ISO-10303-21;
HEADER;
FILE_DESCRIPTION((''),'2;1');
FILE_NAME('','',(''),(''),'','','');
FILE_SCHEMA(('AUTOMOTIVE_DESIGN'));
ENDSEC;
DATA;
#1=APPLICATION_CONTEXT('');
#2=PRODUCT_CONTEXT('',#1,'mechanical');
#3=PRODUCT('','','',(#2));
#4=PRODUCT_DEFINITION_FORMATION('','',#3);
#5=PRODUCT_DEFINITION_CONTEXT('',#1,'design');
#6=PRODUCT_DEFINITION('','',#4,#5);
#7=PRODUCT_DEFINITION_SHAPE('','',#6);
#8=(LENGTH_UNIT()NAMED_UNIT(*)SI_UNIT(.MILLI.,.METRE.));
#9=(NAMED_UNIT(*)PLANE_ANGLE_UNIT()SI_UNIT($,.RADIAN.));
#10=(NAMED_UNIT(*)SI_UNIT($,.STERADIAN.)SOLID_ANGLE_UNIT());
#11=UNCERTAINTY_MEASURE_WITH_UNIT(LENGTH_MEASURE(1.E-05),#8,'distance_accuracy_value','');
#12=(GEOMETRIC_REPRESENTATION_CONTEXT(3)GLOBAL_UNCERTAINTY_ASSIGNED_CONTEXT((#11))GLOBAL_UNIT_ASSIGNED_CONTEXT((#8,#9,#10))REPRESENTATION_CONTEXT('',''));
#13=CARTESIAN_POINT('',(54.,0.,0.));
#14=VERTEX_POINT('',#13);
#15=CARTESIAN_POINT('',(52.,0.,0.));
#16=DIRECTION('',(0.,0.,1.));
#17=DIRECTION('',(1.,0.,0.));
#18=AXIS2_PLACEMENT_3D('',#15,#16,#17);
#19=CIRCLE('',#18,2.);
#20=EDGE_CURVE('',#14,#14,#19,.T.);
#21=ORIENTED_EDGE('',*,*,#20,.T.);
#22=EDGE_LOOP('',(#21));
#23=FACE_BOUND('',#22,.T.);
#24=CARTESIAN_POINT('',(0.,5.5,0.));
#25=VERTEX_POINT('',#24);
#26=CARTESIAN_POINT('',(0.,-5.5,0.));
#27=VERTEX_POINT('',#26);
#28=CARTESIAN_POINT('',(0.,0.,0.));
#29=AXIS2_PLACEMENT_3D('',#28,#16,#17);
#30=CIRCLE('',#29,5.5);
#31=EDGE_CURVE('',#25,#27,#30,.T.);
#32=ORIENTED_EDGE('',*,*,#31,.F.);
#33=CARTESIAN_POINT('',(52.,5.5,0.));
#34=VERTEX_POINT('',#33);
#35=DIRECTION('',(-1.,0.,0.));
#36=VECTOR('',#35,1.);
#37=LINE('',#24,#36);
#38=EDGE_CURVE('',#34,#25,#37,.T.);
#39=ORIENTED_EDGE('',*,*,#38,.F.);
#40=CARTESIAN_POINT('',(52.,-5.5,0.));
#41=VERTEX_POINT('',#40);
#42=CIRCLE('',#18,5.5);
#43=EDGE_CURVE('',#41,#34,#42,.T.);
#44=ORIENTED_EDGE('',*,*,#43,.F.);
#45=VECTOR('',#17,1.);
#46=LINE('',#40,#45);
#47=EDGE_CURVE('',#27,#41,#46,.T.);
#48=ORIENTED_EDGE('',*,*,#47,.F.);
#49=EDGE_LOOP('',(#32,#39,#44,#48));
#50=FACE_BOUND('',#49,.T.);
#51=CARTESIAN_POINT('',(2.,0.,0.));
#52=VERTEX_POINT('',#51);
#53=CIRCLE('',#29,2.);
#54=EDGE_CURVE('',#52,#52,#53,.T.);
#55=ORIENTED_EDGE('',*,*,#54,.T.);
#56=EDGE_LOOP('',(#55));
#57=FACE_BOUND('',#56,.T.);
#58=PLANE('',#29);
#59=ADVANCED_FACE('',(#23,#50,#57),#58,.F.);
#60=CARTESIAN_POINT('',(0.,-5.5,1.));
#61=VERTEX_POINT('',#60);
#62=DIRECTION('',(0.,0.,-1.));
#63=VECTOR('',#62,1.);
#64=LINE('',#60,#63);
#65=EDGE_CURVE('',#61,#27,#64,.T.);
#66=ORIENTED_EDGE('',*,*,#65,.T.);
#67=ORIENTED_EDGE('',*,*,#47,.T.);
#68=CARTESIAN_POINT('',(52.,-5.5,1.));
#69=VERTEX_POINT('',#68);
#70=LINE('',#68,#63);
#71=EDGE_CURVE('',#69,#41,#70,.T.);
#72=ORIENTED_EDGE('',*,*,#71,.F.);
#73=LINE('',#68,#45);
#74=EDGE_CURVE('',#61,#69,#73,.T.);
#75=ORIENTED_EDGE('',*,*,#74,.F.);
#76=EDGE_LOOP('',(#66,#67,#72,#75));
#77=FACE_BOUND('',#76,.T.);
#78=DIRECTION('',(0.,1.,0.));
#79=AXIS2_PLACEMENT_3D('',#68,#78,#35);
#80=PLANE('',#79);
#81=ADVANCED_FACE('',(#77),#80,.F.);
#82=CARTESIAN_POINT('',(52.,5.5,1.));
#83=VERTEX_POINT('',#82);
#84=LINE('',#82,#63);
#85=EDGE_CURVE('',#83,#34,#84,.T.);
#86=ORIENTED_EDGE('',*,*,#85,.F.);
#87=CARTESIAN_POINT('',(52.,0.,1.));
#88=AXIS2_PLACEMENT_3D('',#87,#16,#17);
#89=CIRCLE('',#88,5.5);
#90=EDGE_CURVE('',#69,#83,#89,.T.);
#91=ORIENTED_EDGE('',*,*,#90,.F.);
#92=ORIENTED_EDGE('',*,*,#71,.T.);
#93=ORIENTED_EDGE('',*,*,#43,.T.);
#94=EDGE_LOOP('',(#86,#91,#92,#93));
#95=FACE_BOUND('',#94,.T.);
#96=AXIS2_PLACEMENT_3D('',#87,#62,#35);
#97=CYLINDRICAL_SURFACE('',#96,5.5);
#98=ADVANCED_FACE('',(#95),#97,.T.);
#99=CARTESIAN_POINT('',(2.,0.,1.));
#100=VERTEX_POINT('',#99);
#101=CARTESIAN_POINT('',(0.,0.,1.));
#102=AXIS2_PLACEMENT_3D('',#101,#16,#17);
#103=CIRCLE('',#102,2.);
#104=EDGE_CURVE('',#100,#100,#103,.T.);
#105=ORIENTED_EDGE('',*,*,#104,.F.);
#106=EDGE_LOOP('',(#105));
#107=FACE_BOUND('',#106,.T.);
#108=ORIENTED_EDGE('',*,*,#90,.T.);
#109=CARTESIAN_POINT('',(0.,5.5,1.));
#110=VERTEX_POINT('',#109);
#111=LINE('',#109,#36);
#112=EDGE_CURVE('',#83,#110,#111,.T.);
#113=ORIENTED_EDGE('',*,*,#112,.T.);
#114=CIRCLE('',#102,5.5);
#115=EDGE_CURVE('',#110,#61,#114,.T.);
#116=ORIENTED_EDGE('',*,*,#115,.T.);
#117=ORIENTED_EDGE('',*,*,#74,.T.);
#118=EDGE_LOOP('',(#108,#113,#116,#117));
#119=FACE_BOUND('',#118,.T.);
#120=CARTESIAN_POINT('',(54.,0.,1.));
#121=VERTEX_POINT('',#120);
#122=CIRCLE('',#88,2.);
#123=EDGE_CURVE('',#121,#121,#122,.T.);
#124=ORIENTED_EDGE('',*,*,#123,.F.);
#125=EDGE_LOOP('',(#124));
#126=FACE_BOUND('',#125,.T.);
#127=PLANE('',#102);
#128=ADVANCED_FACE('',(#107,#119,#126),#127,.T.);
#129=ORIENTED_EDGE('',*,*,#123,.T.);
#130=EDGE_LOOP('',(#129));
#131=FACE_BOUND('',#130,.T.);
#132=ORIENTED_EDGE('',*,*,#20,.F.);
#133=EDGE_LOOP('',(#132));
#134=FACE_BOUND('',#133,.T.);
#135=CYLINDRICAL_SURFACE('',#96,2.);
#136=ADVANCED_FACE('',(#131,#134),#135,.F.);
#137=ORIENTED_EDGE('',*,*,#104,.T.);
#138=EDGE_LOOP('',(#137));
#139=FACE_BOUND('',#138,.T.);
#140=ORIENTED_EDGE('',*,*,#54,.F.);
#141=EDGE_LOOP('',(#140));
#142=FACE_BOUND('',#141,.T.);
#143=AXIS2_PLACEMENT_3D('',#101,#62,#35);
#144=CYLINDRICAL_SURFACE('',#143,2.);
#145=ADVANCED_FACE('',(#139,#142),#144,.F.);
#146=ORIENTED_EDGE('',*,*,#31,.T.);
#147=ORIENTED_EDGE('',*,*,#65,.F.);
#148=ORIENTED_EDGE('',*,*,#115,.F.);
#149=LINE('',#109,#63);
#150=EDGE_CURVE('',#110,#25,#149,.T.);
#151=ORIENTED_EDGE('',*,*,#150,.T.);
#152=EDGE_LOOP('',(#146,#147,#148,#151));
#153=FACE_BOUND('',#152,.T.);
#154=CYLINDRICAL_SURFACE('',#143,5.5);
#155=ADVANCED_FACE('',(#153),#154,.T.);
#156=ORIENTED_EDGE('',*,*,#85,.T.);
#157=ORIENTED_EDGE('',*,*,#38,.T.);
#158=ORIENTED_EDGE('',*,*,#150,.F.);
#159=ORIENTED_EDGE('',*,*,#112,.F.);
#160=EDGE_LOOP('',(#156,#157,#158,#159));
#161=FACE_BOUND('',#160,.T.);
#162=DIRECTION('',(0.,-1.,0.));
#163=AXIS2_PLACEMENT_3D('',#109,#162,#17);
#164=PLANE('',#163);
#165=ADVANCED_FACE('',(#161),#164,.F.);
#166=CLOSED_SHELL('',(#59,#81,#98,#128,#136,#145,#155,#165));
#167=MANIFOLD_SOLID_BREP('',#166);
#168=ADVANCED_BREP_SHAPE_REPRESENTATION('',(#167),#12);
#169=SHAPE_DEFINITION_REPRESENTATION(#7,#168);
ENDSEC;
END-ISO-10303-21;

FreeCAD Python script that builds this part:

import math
import FreeCAD as App
import Part
import Sketcher

V = App.Vector
Q = App.Units.Quantity

doc = App.newDocument("Part")
body = doc.addObject("PartDesign::Body", "Body")

# Sketch on XY plane
sketch1 = body.newObject("Sketcher::SketchObject", "Sketch")
sketch1.AttachmentSupport = (doc.getObject("XY_Plane"), [""])
sketch1.MapMode = "FlatFace"
sketch1.addGeometry(Part.LineSegment(V(52, 5.5, 0), V(0, 5.5, 0)), False)
sketch1.addGeometry(Part.ArcOfCircle(Part.Circle(V(0, 0, 0), V(0, 0, 1), 5.5), math.radians(90), math.radians(270)), False)
sketch1.addGeometry(Part.LineSegment(V(0, -5.5, 0), V(52, -5.5, 0)), False)
sketch1.addGeometry(Part.ArcOfCircle(Part.Circle(V(52, 0, 0), V(0, 0, 1), 5.5), math.radians(-90), math.radians(90)), False)
sketch1.addGeometry(Part.Circle(V(52, 0, 0), V(0, 0, 1), 2), False)
sketch1.addGeometry(Part.Circle(V(0, 0, 0), V(0, 0, 1), 2), False)
sketch1.addConstraint(Sketcher.Constraint("Tangent", 0, 2, 1, 1))
sketch1.addConstraint(Sketcher.Constraint("Tangent", 1, 2, 2, 1))
sketch1.addConstraint(Sketcher.Constraint("Tangent", 2, 2, 3, 1))
sketch1.addConstraint(Sketcher.Constraint("Tangent", 3, 2, 0, 1))
sketch1.addConstraint(Sketcher.Constraint("Horizontal", 0))
sketch1.addConstraint(Sketcher.Constraint("Horizontal", 2))
sketch1.addConstraint(Sketcher.Constraint("Coincident", 1, 3, -1, 1))
sketch1.addConstraint(Sketcher.Constraint("Coincident", 5, 3, -1, 1))
sketch1.addConstraint(Sketcher.Constraint("Coincident", 4, 3, 3, 3))
sketch1.addConstraint(Sketcher.Constraint("Equal", 4, 5))
sketch1.addConstraint(Sketcher.Constraint("Diameter", 4, Q("4 mm")))
sketch1.addConstraint(Sketcher.Constraint("Radius", 1, Q("5.5 mm")))
sketch1.addConstraint(Sketcher.Constraint("DistanceX", 0, 2, 0, 1, Q("52 mm")))
pad1 = body.newObject("PartDesign::Pad", "Pad")
pad1.Profile = sketch1
pad1.Length = 1

doc.recompute()
